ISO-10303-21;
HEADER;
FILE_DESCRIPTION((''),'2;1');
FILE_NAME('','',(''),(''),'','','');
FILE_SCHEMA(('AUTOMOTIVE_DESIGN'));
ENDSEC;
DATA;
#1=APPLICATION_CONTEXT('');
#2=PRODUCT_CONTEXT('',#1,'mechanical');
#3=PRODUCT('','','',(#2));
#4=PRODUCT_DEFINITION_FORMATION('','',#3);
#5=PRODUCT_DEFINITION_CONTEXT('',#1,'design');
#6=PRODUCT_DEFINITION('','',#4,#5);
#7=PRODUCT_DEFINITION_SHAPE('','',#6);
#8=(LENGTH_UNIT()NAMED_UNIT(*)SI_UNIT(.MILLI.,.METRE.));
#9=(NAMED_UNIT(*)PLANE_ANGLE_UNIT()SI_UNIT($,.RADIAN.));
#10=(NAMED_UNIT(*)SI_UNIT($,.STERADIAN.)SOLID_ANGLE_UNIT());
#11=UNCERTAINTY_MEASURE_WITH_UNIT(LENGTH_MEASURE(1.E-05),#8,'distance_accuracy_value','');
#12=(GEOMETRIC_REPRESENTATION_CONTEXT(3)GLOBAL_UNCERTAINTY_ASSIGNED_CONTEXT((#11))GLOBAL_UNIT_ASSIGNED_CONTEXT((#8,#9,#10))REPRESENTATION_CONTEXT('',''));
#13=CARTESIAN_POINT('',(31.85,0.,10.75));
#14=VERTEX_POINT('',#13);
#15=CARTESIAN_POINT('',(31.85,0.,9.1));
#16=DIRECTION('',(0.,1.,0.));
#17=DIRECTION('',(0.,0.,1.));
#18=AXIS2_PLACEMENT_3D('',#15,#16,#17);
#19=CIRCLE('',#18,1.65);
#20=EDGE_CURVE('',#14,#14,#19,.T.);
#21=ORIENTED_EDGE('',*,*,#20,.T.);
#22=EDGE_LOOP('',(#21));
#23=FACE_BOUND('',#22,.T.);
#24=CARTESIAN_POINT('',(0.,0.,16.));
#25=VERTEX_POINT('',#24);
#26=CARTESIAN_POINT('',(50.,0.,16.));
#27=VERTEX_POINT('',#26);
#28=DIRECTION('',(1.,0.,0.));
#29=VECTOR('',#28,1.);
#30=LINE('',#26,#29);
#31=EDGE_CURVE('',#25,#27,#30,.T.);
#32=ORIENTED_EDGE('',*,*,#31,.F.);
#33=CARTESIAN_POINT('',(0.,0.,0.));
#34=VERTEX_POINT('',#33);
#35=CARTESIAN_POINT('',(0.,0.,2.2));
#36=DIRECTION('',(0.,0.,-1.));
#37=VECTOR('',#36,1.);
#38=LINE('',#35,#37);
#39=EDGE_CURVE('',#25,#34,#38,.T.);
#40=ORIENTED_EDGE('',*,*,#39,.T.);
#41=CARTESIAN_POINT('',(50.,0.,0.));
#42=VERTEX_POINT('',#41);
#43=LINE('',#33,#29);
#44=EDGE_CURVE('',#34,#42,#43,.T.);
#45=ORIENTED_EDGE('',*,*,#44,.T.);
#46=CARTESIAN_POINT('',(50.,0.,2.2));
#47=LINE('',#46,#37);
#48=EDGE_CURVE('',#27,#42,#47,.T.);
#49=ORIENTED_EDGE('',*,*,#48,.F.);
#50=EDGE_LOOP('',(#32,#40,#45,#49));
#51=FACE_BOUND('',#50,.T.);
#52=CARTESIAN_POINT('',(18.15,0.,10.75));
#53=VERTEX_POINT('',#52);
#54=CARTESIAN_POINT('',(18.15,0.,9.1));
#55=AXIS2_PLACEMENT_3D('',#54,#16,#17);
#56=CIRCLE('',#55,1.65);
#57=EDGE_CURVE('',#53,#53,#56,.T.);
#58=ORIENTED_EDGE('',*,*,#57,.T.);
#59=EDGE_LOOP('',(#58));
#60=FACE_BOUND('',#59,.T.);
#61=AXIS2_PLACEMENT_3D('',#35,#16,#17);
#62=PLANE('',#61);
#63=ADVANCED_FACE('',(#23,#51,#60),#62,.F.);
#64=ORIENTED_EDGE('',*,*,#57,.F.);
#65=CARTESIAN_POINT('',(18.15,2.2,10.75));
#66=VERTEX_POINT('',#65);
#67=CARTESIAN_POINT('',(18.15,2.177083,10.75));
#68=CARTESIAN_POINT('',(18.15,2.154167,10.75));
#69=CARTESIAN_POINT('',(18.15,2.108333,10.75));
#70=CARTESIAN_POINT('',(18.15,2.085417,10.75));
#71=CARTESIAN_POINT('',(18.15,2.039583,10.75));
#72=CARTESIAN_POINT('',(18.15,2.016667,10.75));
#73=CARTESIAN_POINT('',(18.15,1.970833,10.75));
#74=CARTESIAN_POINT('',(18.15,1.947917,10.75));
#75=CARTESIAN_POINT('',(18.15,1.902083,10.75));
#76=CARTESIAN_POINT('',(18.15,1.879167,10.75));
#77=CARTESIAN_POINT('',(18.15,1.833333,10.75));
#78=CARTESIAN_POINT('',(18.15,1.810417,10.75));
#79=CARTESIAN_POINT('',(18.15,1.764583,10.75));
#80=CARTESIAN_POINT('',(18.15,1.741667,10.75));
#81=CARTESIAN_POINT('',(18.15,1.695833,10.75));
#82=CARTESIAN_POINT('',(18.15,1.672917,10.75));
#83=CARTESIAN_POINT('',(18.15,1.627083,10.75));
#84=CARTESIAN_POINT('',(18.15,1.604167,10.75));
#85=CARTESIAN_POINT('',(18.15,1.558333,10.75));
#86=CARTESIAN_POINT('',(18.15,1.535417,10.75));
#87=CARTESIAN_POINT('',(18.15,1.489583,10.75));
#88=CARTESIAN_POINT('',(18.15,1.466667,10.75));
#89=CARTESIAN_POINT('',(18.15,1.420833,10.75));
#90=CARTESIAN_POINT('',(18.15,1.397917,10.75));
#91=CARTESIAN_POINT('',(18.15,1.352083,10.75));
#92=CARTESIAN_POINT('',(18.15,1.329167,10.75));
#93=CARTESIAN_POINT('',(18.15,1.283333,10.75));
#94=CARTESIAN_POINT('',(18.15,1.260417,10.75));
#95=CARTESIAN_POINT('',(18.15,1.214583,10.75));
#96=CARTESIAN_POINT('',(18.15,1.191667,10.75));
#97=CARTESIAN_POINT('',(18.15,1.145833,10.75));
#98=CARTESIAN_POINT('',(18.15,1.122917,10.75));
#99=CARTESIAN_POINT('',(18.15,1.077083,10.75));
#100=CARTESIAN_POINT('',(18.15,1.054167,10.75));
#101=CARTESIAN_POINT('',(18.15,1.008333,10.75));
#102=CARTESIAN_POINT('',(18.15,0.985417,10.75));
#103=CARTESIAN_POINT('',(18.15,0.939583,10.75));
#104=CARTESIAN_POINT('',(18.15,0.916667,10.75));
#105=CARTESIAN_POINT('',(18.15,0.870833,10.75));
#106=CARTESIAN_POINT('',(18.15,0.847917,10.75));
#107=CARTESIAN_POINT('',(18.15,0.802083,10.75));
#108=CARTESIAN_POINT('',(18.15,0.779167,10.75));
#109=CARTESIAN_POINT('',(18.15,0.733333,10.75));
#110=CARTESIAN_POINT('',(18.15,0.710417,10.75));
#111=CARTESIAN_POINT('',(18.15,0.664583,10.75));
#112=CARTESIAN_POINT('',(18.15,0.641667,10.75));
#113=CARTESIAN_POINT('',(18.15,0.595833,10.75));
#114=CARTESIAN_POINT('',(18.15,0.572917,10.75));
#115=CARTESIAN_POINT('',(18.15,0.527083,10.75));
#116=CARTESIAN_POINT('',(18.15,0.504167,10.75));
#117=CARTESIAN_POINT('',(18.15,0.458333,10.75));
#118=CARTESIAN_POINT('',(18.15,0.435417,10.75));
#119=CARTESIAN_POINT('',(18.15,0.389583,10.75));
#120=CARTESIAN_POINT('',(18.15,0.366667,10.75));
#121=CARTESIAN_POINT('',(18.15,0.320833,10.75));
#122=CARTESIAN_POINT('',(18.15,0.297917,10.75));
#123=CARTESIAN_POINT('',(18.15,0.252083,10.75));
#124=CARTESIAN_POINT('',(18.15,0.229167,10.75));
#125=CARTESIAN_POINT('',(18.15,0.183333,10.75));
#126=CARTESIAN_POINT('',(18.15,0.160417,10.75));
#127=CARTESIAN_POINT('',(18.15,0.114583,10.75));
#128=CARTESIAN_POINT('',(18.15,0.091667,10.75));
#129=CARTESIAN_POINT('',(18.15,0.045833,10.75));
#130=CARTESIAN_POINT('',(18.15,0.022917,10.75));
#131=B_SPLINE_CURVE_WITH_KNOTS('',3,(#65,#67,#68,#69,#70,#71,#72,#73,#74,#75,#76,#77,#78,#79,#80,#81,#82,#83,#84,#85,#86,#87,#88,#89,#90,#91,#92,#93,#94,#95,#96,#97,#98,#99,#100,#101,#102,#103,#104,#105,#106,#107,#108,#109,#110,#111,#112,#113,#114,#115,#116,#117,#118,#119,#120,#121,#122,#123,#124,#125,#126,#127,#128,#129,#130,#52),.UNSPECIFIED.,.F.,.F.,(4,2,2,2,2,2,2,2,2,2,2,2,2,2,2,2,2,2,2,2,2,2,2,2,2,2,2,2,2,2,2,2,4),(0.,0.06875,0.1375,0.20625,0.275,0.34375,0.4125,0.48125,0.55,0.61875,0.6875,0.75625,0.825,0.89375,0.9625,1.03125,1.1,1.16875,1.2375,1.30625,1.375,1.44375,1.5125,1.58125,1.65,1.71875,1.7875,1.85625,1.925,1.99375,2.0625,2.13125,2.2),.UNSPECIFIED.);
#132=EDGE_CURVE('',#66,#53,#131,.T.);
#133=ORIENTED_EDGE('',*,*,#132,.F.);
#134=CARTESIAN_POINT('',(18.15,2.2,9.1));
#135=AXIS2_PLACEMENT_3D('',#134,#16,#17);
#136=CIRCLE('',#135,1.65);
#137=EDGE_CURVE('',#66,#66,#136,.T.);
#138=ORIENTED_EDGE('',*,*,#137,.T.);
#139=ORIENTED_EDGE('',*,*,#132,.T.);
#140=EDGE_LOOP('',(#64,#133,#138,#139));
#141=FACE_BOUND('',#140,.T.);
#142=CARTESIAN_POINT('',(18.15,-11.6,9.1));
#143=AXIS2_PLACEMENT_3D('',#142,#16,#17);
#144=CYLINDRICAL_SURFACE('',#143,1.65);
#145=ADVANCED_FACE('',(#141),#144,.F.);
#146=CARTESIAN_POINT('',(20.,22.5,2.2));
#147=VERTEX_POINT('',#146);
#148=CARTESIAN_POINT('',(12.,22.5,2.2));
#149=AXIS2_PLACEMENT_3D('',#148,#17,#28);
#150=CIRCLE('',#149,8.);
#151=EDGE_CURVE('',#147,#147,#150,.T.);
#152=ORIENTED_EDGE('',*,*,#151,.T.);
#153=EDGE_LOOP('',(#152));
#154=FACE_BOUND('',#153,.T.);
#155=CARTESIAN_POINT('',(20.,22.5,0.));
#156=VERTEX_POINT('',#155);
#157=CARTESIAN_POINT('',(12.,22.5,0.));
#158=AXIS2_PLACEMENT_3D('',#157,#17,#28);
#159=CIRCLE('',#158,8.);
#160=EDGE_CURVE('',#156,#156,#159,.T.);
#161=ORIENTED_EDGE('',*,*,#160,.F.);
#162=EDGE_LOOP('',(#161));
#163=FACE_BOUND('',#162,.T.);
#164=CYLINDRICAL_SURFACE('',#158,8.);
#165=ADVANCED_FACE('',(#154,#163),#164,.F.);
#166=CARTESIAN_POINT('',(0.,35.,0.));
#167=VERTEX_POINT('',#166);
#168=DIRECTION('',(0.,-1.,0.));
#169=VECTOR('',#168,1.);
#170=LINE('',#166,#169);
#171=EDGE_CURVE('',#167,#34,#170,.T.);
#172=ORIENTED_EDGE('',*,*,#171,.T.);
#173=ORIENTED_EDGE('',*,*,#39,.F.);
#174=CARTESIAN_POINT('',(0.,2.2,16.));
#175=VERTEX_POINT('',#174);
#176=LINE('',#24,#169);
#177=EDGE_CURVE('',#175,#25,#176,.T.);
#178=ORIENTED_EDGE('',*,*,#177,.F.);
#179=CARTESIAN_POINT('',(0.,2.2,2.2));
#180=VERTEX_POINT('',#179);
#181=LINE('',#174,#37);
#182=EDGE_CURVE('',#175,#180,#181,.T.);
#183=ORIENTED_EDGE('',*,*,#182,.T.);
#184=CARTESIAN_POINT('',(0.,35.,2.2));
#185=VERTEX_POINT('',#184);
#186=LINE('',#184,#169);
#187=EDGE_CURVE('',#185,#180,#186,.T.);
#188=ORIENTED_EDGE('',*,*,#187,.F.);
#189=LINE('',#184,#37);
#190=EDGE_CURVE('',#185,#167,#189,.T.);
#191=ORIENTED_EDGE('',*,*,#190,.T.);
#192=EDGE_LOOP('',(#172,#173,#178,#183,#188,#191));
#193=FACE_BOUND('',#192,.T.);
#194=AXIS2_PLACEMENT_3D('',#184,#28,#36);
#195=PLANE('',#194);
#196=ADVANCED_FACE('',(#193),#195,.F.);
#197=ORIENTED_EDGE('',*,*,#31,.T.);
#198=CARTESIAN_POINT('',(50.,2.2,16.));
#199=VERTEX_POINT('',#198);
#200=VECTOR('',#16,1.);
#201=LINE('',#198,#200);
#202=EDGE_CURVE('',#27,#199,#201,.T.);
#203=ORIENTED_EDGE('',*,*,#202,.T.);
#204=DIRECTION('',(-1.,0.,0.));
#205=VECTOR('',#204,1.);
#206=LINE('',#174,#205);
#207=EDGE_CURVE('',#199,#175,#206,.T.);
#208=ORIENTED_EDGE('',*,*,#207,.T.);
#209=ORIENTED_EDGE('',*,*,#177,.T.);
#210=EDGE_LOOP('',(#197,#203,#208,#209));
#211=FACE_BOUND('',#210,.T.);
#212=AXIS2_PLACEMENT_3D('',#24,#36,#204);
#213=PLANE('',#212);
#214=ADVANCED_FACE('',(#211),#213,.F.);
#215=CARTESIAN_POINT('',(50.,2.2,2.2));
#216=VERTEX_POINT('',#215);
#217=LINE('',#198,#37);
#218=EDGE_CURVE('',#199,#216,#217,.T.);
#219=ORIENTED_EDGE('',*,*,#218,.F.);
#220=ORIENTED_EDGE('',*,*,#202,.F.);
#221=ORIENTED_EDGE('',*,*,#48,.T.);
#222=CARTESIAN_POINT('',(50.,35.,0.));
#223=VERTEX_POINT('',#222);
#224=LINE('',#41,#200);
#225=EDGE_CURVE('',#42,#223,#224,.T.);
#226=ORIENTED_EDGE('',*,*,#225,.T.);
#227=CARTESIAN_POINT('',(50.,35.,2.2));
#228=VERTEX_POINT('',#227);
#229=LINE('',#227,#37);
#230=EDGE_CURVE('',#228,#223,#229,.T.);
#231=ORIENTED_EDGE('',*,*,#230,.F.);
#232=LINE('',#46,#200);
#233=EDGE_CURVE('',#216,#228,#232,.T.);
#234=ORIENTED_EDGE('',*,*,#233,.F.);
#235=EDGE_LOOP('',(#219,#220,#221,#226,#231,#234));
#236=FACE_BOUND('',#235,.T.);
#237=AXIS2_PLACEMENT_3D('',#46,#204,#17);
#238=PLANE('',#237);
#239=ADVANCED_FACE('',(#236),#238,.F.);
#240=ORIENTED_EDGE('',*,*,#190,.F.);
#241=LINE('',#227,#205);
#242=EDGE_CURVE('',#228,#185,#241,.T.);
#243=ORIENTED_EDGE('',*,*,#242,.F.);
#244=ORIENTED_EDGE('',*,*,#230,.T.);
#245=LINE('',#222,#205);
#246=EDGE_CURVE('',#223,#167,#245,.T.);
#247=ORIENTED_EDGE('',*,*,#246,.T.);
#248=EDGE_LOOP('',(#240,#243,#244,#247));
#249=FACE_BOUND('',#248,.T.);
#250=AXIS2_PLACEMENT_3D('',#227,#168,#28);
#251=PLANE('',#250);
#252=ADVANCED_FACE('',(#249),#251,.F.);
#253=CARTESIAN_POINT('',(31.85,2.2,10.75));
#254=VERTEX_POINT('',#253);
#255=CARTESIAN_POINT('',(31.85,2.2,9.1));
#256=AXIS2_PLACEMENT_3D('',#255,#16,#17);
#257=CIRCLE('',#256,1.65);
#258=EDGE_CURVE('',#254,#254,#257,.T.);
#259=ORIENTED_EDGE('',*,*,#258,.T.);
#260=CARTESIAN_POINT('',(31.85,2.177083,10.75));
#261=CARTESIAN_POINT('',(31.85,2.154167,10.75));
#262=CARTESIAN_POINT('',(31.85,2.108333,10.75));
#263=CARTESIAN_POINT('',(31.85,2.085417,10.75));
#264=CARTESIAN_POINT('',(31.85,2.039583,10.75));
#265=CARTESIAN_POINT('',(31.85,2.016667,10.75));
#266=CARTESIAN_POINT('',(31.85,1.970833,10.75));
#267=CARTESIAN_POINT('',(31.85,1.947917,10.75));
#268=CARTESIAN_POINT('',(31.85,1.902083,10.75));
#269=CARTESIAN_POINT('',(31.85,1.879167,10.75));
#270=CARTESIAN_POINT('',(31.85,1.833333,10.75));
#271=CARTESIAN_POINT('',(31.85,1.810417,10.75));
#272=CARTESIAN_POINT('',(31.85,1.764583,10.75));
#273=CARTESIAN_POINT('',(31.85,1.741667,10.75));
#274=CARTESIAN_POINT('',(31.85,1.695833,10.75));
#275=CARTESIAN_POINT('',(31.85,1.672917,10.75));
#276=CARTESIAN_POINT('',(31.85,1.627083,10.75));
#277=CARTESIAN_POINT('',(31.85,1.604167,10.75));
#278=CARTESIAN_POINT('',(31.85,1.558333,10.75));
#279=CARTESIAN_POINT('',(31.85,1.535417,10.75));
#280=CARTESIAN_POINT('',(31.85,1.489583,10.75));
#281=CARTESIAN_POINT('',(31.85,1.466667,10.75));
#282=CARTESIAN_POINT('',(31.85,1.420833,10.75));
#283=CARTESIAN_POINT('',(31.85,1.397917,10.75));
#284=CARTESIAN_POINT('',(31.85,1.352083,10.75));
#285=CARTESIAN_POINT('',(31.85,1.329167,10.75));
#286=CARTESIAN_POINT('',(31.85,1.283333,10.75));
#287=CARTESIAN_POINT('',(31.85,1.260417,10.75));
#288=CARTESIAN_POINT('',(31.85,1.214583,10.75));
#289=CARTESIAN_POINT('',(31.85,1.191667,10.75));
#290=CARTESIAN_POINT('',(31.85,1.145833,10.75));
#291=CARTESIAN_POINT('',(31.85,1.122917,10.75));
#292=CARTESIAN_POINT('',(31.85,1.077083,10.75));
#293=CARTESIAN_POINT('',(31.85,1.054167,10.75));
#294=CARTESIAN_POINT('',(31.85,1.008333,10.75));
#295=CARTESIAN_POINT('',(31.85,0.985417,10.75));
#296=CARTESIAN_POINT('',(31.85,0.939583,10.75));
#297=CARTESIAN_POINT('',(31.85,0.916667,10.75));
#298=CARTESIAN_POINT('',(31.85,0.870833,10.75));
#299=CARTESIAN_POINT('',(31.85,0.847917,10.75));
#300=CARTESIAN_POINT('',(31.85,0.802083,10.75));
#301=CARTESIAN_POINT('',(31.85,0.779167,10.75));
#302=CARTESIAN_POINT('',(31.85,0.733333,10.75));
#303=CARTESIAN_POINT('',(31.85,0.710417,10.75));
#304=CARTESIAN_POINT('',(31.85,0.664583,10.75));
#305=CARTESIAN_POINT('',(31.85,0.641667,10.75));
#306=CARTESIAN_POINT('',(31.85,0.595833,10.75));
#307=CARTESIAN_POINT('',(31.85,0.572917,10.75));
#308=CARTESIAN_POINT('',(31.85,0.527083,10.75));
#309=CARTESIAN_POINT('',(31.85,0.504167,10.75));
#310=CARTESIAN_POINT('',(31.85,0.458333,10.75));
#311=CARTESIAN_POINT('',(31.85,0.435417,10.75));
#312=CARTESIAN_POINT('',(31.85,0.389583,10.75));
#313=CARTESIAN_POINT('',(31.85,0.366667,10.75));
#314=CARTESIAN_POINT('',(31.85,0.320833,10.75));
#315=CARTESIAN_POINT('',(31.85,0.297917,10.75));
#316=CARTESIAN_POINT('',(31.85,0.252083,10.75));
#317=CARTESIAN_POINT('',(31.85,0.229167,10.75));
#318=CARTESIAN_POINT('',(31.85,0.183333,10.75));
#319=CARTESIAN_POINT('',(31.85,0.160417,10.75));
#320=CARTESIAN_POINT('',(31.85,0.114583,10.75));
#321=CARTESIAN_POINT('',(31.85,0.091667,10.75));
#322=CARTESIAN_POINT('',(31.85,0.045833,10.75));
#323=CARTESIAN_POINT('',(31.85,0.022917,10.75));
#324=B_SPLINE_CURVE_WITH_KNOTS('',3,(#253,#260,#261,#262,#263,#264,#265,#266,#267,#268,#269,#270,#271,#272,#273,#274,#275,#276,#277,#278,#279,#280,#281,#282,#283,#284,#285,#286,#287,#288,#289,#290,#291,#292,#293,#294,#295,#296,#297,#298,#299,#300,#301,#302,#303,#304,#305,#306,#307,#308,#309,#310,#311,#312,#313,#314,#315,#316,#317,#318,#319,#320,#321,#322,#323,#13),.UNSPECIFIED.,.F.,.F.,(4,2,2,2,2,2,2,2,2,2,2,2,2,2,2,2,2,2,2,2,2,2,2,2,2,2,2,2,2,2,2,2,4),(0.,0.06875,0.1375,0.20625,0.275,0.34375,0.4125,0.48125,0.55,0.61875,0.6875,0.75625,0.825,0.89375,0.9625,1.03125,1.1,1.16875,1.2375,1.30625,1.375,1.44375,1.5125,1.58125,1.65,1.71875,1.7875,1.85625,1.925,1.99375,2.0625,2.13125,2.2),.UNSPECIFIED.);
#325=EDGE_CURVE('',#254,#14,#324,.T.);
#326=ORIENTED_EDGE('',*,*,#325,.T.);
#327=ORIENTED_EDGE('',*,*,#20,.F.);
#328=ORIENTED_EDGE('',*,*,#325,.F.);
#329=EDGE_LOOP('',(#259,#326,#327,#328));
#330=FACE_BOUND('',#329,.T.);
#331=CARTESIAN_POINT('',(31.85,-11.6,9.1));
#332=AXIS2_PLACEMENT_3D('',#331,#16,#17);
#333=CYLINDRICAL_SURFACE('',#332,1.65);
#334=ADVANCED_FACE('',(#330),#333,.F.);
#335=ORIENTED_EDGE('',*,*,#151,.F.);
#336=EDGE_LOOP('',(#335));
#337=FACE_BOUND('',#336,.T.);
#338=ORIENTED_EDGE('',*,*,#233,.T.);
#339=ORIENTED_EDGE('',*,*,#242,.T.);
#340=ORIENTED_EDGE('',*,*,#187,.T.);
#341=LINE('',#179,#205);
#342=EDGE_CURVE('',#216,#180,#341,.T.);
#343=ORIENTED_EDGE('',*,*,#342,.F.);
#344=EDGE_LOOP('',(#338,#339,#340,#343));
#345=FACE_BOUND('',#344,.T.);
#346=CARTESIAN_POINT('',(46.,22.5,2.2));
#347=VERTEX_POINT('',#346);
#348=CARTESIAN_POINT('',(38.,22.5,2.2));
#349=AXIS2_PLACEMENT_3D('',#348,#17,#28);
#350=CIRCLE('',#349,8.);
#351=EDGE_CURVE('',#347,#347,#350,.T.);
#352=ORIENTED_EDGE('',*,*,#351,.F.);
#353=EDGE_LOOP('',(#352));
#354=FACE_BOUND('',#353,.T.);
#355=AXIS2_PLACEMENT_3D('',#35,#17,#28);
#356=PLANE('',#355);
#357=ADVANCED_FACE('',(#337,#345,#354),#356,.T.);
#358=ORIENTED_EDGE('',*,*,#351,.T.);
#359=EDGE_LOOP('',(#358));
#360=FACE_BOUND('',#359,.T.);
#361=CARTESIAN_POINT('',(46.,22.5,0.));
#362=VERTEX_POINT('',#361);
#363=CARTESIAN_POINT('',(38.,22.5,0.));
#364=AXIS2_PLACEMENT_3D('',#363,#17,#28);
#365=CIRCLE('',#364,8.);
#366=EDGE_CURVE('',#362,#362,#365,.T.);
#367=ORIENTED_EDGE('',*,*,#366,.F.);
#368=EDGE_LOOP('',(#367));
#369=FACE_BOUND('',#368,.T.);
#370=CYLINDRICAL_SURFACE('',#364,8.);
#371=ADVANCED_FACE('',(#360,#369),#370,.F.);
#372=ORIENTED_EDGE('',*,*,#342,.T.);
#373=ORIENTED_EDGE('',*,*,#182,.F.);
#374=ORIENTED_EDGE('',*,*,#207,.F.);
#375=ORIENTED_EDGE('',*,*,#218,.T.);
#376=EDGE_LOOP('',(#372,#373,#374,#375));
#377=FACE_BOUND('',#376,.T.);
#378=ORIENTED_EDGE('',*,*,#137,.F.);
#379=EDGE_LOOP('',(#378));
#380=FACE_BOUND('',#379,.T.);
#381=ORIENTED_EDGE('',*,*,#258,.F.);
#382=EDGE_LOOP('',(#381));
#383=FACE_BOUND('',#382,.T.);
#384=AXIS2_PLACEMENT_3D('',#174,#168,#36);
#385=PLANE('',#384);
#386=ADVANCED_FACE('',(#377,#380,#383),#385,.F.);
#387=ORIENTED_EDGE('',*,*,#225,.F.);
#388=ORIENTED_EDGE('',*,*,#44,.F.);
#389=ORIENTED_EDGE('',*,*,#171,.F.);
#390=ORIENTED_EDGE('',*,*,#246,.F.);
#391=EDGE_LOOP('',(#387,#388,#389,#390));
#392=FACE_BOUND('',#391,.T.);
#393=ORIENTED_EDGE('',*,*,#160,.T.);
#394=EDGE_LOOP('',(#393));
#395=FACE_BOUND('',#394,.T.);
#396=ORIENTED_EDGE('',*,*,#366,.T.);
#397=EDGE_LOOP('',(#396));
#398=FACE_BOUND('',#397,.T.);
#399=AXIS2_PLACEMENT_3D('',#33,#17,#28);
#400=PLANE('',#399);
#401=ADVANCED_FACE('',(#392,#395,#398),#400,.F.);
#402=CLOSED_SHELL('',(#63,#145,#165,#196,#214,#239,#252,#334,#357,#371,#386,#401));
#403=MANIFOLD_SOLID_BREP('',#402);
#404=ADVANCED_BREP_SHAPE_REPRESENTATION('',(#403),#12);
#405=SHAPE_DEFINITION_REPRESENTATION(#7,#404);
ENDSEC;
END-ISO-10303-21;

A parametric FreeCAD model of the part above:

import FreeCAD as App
import Part
import Sketcher
Q = App.Units.Quantity

doc = App.newDocument("Part")
params = doc.addObject("Spreadsheet::Sheet", "Params")
for row, (alias, value) in enumerate([
    ("sketch1_width", "50 mm"),
    ("sketch1_height", "35 mm"),
    ("pad1_length", "2.2 mm"),
    ("sketch2_diameter", "16 mm"),
    ("pocket1_length", "2.2 mm"),
    ("sketch3_width", "50 mm"),
    ("sketch3_height", "2.2 mm"),
    ("pad2_length", "13.8 mm"),
    ("sketch4_diameter", "3.3 mm"),
    ("pocket2_length", "13.8 mm"),
], start=1):
    params.set(f"A{row}", alias)
    params.set(f"B{row}", "=" + value)
    params.setAlias(f"B{row}", alias)

body = doc.addObject("PartDesign::Body", "Body")

sketch1 = body.newObject("Sketcher::SketchObject", "Sketch")
sketch1.AttachmentSupport = (doc.getObject("XY_Plane"), [""])
sketch1.MapMode = "FlatFace"
sketch1.addGeometry([
    Part.LineSegment(App.Vector(0, 35, 0), App.Vector(0, 0, 0)),
    Part.LineSegment(App.Vector(0, 0, 0), App.Vector(50, 0, 0)),
    Part.LineSegment(App.Vector(50, 0, 0), App.Vector(50, 35, 0)),
    Part.LineSegment(App.Vector(50, 35, 0), App.Vector(0, 35, 0)),
], False)
sketch1.addConstraint([
    Sketcher.Constraint("Coincident", 0, 2, 1, 1),
    Sketcher.Constraint("Coincident", 1, 2, 2, 1),
    Sketcher.Constraint("Coincident", 2, 2, 3, 1),
    Sketcher.Constraint("Coincident", 3, 2, 0, 1),
    Sketcher.Constraint("Vertical", 0),
    Sketcher.Constraint("Horizontal", 1),
    Sketcher.Constraint("Vertical", 2),
    Sketcher.Constraint("Horizontal", 3),
    Sketcher.Constraint("Coincident", 0, 2, -1, 1),
    Sketcher.Constraint("DistanceX", 1, 1, 1, 2, Q("50 mm")),
    Sketcher.Constraint("DistanceY", 0, 2, 0, 1, Q("35 mm")),
])
sketch1.setExpression("Constraints[9]", "Params.sketch1_width")
sketch1.setExpression("Constraints[10]", "Params.sketch1_height")
pad1 = body.newObject("PartDesign::Pad", "Pad")
pad1.Profile = sketch1
pad1.setExpression("Length", "Params.pad1_length")

sketch2 = body.newObject("Sketcher::SketchObject", "Sketch001")
sketch2.AttachmentSupport = (doc.getObject("XY_Plane"), [""])
sketch2.MapMode = "FlatFace"
sketch2.AttachmentOffset = App.Placement(App.Vector(0, 0, 2.2), App.Rotation())
sketch2.addGeometry([
    Part.Circle(App.Vector(12, 22, 0), App.Vector(0, 0, 1), 8),
    Part.Circle(App.Vector(38, 22, 0), App.Vector(0, 0, 1), 8),
], False)
sketch2.addConstraint([
    Sketcher.Constraint("Equal", 0, 1),
    Sketcher.Constraint("Horizontal", 0, 3, 1, 3),
    Sketcher.Constraint("Diameter", 0, Q("16 mm")),
    Sketcher.Constraint("DistanceX", -1, 1, 0, 3, Q("12 mm")),
    Sketcher.Constraint("DistanceX", -1, 1, 1, 3, Q("38 mm")),
    Sketcher.Constraint("DistanceY", -1, 1, 0, 3, Q("22.5 mm")),
])
sketch2.setExpression("Constraints[2]", "Params.sketch2_diameter")
pocket1 = body.newObject("PartDesign::Pocket", "Pocket")
pocket1.Profile = sketch2
pocket1.setExpression("Length", "Params.pocket1_length")

sketch3 = body.newObject("Sketcher::SketchObject", "Sketch002")
sketch3.AttachmentSupport = (doc.getObject("XY_Plane"), [""])
sketch3.MapMode = "FlatFace"
sketch3.AttachmentOffset = App.Placement(App.Vector(0, 0, 2.2), App.Rotation())
sketch3.addGeometry([
    Part.LineSegment(App.Vector(0, 2.2, 0), App.Vector(0, 0, 0)),
    Part.LineSegment(App.Vector(0, 0, 0), App.Vector(50, 0, 0)),
    Part.LineSegment(App.Vector(50, 0, 0), App.Vector(50, 2.2, 0)),
    Part.LineSegment(App.Vector(50, 2.2, 0), App.Vector(0, 2.2, 0)),
], False)
sketch3.addConstraint([
    Sketcher.Constraint("Coincident", 0, 2, 1, 1),
    Sketcher.Constraint("Coincident", 1, 2, 2, 1),
    Sketcher.Constraint("Coincident", 2, 2, 3, 1),
    Sketcher.Constraint("Coincident", 3, 2, 0, 1),
    Sketcher.Constraint("Vertical", 0),
    Sketcher.Constraint("Horizontal", 1),
    Sketcher.Constraint("Vertical", 2),
    Sketcher.Constraint("Horizontal", 3),
    Sketcher.Constraint("Coincident", 0, 2, -1, 1),
    Sketcher.Constraint("DistanceX", 1, 1, 1, 2, Q("50 mm")),
    Sketcher.Constraint("DistanceY", 0, 2, 0, 1, Q("2.2 mm")),
])
sketch3.setExpression("Constraints[9]", "Params.sketch3_width")
sketch3.setExpression("Constraints[10]", "Params.sketch3_height")
pad2 = body.newObject("PartDesign::Pad", "Pad001")
pad2.Profile = sketch3
pad2.setExpression("Length", "Params.pad2_length")

sketch4 = body.newObject("Sketcher::SketchObject", "Sketch003")
sketch4.AttachmentSupport = (doc.getObject("XZ_Plane"), [""])
sketch4.MapMode = "FlatFace"
sketch4.AttachmentOffset = App.Placement(App.Vector(0, 0, -2.2), App.Rotation())
sketch4.addGeometry([
    Part.Circle(App.Vector(18.1, 9.1, 0), App.Vector(0, 0, 1), 1.6),
    Part.Circle(App.Vector(31.9, 9.1, 0), App.Vector(0, 0, 1), 1.6),
], False)
sketch4.addConstraint([
    Sketcher.Constraint("Equal", 0, 1),
    Sketcher.Constraint("Horizontal", 0, 3, 1, 3),
    Sketcher.Constraint("Diameter", 0, Q("3.3 mm")),
    Sketcher.Constraint("DistanceY", -1, 1, 0, 3, Q("9.1 mm")),
    Sketcher.Constraint("DistanceX", 0, 3, 1, 3, Q("13.7 mm")),
    Sketcher.Constraint("DistanceX", -1, 1, 0, 3, Q("18.15 mm")),
])
sketch4.setExpression("Constraints[2]", "Params.sketch4_diameter")
pocket2 = body.newObject("PartDesign::Pocket", "Pocket001")
pocket2.Profile = sketch4
pocket2.setExpression("Length", "Params.pocket2_length")
pocket2.Reversed = True

doc.recompute()
